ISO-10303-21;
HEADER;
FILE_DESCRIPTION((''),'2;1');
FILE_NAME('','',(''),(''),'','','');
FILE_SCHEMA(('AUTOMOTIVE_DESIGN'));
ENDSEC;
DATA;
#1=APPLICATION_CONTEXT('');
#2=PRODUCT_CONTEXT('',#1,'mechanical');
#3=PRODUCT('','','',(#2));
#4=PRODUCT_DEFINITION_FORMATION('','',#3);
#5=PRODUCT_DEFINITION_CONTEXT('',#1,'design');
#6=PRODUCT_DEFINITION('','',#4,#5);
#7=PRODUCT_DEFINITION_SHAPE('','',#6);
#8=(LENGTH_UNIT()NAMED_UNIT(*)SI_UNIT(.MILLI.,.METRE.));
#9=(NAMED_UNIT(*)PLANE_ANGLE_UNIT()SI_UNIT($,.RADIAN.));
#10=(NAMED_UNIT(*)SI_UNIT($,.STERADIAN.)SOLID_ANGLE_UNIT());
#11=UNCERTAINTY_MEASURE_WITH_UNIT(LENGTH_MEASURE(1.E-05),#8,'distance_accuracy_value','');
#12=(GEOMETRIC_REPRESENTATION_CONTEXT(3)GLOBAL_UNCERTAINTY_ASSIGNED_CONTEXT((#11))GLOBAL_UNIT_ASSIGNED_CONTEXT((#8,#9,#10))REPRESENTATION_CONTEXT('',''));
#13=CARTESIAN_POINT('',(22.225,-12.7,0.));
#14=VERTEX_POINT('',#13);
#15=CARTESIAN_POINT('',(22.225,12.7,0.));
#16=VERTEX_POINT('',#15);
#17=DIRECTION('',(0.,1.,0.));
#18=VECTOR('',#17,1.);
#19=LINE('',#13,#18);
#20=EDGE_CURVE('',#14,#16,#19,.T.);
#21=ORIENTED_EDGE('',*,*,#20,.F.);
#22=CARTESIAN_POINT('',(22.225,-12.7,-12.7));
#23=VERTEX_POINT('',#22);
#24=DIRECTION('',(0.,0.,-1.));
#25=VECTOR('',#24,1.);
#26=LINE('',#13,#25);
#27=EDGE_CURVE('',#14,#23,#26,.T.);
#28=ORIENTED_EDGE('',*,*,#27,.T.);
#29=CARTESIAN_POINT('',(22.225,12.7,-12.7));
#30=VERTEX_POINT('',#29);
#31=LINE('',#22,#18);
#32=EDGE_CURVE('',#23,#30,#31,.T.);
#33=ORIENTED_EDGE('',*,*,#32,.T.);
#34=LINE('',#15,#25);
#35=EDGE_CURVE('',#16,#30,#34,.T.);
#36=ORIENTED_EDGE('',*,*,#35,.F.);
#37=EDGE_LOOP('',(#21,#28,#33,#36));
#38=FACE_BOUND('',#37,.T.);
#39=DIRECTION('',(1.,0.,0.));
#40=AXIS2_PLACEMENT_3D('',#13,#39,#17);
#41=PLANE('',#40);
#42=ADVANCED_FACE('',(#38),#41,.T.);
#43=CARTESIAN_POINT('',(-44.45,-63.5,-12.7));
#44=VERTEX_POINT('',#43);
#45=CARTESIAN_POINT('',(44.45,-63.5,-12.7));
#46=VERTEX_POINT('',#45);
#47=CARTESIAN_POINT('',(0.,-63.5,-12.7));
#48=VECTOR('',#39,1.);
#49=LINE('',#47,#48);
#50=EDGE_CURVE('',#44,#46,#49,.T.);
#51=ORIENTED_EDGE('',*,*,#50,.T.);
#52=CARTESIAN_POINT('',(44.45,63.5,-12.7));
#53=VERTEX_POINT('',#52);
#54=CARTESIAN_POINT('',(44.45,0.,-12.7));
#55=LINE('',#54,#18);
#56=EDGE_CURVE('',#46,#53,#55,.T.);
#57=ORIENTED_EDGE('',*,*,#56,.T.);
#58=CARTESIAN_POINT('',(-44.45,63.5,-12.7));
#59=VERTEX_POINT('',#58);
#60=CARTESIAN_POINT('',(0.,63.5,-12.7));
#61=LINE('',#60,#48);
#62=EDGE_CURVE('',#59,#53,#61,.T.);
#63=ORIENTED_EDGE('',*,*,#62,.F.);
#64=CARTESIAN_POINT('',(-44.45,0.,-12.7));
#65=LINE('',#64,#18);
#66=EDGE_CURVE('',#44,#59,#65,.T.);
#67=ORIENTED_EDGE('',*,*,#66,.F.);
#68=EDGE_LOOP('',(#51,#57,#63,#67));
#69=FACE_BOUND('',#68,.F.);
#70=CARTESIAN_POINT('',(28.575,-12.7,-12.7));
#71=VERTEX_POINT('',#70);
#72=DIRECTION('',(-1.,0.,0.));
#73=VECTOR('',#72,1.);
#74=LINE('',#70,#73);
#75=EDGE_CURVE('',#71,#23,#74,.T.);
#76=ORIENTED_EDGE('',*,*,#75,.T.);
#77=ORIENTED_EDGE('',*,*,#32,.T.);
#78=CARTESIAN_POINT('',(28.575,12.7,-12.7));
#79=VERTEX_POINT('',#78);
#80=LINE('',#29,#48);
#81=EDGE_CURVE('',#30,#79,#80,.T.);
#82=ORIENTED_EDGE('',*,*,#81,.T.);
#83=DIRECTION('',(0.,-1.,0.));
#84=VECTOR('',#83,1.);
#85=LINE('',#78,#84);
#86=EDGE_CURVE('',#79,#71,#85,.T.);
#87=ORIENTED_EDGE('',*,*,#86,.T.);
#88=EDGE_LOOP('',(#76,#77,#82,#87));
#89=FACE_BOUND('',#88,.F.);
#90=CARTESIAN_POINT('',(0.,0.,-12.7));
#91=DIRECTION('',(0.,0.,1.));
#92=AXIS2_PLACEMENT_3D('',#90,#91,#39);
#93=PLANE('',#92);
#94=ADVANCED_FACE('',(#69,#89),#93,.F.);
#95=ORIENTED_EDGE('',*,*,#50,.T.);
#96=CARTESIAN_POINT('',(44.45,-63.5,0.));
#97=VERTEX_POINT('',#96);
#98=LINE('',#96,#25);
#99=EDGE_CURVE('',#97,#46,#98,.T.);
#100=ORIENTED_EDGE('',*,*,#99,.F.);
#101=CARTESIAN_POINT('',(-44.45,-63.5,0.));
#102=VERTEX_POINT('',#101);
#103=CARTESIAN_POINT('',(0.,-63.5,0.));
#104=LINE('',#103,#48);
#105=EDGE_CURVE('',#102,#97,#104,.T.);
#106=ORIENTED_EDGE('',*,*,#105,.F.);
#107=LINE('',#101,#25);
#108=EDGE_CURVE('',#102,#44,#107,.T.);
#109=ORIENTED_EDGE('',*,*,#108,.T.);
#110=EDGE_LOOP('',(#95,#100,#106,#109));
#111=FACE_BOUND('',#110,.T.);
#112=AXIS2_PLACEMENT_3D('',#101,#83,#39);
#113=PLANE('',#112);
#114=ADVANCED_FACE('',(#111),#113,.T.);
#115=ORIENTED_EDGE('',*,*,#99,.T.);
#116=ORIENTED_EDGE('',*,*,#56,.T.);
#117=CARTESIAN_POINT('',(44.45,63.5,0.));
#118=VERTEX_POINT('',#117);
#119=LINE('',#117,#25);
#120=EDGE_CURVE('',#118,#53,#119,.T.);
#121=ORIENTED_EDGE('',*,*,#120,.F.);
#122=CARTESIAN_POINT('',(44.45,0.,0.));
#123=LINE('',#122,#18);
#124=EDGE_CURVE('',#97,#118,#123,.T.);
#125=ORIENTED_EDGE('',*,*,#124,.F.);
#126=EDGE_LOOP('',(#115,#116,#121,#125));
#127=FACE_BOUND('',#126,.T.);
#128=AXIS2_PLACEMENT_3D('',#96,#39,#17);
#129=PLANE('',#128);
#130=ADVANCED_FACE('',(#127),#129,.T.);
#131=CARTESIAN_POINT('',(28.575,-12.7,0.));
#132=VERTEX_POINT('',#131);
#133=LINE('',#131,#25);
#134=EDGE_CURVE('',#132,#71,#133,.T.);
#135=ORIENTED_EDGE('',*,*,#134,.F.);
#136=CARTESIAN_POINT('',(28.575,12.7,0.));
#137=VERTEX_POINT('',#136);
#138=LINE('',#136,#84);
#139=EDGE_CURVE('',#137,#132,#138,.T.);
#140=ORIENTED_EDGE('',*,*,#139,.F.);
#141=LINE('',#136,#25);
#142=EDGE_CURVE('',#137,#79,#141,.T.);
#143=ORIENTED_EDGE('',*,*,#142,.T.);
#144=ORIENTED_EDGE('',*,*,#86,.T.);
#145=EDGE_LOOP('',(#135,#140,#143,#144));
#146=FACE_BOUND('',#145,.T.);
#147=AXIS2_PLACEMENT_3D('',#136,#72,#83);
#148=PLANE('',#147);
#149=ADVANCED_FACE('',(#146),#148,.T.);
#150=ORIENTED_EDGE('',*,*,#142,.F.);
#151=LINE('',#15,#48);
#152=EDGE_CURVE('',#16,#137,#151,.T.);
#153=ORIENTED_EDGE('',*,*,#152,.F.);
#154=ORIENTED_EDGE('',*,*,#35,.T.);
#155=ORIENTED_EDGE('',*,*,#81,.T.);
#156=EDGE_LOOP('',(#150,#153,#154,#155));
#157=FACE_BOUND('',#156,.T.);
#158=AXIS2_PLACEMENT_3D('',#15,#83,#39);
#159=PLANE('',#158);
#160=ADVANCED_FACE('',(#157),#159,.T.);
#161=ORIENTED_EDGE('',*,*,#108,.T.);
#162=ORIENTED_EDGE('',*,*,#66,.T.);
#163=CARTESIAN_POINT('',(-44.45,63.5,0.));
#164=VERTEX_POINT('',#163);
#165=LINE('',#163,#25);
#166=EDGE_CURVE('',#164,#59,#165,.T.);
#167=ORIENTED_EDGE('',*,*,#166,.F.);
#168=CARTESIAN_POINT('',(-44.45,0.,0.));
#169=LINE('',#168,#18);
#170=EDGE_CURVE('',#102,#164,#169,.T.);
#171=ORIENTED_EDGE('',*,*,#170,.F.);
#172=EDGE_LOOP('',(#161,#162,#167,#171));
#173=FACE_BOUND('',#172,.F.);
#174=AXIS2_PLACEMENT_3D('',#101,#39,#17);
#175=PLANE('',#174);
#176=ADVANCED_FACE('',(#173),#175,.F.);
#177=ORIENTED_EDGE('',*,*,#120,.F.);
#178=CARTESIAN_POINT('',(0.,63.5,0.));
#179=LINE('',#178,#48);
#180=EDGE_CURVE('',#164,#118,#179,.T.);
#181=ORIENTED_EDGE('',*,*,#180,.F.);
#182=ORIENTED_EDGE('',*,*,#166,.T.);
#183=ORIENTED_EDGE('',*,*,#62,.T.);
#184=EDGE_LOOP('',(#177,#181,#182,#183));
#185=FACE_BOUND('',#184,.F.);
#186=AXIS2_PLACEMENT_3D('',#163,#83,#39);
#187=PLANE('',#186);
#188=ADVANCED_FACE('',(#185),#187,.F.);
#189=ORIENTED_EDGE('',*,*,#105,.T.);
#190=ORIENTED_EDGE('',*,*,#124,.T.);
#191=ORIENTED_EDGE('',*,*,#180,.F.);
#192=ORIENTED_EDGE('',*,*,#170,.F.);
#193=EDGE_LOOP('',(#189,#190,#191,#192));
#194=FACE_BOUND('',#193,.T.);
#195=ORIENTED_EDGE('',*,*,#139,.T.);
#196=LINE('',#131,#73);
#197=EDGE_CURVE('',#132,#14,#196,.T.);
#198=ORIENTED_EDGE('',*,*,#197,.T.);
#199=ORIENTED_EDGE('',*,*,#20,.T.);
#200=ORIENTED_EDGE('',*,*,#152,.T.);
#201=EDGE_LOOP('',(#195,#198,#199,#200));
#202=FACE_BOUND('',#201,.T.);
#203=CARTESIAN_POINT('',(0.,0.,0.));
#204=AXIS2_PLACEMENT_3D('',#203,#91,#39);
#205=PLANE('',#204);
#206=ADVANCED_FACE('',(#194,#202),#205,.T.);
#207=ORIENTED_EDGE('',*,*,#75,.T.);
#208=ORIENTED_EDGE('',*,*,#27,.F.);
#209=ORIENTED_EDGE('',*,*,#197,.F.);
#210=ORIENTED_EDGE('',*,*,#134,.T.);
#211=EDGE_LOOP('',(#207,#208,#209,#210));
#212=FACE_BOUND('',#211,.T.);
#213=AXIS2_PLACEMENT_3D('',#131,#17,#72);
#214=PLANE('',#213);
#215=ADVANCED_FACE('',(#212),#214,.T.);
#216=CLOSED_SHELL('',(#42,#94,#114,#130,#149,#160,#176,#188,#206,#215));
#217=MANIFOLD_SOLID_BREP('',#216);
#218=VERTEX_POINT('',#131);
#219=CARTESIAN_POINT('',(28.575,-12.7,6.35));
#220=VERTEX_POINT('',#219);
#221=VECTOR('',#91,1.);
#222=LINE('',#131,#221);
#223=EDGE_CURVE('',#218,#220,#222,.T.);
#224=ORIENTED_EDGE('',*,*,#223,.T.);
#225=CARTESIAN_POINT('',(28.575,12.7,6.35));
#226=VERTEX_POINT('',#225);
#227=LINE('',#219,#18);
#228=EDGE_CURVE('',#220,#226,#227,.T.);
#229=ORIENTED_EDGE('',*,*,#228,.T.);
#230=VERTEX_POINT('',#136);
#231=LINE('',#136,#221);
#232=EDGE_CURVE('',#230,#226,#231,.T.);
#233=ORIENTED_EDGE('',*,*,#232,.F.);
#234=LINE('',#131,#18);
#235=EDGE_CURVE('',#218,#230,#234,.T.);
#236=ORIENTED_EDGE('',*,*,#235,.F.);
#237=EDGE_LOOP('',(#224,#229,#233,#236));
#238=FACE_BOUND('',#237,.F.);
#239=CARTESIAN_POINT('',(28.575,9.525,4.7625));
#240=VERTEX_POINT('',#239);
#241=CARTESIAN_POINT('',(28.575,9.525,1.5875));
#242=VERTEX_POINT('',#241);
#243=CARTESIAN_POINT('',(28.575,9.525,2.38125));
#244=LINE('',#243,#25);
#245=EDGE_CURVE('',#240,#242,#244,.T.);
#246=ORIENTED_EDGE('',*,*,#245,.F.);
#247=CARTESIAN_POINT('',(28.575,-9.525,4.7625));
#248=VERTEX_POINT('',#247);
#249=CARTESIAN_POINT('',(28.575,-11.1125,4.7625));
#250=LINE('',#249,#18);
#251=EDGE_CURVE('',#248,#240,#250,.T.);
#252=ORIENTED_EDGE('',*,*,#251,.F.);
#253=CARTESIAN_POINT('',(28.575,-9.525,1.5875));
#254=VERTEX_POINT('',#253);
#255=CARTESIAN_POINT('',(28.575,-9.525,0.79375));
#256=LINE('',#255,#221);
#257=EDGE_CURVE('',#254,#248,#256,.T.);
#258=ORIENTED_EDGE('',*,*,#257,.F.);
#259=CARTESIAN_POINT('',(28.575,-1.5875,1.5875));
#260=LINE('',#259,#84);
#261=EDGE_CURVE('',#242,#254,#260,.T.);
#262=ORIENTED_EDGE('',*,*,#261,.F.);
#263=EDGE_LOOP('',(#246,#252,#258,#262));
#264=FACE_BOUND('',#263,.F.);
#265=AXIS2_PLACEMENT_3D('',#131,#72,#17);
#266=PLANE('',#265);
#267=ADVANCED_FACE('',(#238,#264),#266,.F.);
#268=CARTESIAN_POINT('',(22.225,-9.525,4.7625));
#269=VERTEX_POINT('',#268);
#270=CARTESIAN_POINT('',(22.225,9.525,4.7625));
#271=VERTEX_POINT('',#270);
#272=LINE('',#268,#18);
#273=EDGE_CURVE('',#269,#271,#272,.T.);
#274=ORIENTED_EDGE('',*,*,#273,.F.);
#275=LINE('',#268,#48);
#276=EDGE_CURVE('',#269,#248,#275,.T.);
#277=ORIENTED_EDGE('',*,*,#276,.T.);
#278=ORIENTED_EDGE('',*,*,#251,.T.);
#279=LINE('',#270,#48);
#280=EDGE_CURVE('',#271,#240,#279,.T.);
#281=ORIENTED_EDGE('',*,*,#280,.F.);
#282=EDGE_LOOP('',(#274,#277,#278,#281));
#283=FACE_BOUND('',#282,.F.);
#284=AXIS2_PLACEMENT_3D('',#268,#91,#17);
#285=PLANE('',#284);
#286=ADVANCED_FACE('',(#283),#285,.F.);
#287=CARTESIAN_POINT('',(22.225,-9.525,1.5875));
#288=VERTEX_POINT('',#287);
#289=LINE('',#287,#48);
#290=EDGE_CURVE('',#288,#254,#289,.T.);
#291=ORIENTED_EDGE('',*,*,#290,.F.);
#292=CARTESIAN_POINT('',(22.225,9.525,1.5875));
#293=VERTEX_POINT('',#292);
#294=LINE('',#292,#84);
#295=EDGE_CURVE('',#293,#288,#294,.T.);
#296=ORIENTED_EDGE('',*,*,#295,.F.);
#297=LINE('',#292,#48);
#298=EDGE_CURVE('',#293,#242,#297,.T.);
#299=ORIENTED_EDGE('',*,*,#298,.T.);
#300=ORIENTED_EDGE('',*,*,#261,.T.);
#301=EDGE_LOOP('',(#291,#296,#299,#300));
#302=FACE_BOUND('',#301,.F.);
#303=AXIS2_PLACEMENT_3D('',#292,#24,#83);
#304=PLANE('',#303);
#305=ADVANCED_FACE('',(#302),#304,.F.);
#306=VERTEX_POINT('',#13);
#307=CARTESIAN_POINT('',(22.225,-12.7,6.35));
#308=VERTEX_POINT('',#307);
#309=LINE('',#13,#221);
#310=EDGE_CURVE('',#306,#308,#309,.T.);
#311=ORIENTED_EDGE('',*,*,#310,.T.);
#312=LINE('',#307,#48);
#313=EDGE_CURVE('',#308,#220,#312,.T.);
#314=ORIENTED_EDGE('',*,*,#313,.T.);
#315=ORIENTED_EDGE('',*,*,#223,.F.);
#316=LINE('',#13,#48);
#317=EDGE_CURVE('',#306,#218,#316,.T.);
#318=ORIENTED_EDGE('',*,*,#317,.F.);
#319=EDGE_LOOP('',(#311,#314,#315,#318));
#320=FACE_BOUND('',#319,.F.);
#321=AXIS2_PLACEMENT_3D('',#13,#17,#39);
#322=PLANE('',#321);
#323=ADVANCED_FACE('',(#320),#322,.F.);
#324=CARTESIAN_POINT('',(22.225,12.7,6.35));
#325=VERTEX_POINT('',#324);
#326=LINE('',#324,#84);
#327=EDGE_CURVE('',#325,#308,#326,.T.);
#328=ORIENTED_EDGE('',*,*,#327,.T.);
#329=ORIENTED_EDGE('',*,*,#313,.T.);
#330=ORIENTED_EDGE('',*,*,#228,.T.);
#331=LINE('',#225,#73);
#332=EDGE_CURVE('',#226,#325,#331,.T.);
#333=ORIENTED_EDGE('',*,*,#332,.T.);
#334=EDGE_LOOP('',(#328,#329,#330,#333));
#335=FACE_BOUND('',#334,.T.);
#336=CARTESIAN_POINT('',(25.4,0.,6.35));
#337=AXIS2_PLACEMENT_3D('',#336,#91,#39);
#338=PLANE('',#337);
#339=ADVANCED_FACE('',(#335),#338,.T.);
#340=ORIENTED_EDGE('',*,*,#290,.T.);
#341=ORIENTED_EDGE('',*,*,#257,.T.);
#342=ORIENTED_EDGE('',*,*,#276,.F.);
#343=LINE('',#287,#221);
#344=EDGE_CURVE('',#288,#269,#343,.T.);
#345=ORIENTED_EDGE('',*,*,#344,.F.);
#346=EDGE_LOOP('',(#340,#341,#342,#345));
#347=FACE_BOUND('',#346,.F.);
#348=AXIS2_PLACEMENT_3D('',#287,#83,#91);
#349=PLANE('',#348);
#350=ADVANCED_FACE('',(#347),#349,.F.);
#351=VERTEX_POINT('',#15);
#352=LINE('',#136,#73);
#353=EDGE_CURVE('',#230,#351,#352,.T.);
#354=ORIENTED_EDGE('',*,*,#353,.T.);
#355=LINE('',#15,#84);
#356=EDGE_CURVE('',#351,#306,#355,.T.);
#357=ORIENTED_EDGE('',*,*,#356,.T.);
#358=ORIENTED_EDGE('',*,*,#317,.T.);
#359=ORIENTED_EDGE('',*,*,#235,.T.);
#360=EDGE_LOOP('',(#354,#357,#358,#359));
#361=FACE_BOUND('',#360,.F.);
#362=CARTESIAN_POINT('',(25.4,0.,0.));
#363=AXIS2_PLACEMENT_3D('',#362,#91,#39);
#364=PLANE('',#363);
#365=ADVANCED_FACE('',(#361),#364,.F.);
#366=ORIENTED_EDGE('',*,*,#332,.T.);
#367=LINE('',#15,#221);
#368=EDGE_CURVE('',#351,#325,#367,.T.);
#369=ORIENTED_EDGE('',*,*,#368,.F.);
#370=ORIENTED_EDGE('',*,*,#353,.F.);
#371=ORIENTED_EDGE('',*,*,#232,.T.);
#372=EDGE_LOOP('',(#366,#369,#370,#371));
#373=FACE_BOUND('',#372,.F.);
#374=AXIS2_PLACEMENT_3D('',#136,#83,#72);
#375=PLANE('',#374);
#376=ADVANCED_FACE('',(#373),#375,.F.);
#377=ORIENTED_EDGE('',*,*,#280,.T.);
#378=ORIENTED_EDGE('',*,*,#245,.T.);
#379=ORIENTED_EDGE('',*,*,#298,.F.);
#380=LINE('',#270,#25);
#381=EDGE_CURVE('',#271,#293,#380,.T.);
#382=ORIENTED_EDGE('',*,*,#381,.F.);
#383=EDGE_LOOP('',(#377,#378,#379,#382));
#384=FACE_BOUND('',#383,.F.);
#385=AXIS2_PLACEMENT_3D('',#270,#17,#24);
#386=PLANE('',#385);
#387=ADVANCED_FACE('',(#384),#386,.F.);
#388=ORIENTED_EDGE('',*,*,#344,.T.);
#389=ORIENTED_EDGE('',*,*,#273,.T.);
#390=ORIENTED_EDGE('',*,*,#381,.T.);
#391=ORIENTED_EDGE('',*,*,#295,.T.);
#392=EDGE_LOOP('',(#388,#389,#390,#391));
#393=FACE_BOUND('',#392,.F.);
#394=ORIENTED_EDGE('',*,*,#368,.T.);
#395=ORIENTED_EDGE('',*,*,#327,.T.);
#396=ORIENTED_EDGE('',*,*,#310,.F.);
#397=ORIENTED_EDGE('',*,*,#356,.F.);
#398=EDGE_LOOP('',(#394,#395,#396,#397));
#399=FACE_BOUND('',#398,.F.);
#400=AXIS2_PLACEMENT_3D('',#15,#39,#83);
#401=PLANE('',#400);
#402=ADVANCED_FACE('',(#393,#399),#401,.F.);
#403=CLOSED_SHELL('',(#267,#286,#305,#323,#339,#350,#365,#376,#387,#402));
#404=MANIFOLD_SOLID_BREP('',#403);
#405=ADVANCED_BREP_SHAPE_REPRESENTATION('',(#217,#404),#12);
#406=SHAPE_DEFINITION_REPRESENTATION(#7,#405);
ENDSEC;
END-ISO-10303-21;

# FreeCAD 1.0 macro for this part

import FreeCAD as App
import Part
import Sketcher
Q = App.Units.Quantity


def add_polygon(sketch, points):
    """Adds a closed chain of lines whose ends are joined by coincident constraints."""
    first, n = sketch.GeometryCount, len(points)
    for a, b in zip(points, points[1:] + points[:1]):
        sketch.addGeometry(Part.LineSegment(App.Vector(*a, 0), App.Vector(*b, 0)), False)
    for i in range(n):
        sketch.addConstraint(Sketcher.Constraint("Coincident", first + i, 2, first + (i + 1) % n, 1))

doc = App.newDocument("Part")
body = doc.addObject("PartDesign::Body", "Body")

sketch1 = doc.addObject("Sketcher::SketchObject", "Sketch")
body.addObject(sketch1)
sketch1.AttachmentSupport = (doc.XY_Plane, [""])
sketch1.MapMode = "FlatFace"
add_polygon(sketch1, [(-44.45, 63.5), (-44.45, -63.5), (44.45, -63.5), (44.45, 63.5)])
add_polygon(sketch1, [(22.225, 12.7), (28.575, 12.7), (28.575, -12.7), (22.225, -12.7)])
sketch1.addConstraint(Sketcher.Constraint("Vertical", 0))
sketch1.addConstraint(Sketcher.Constraint("Horizontal", 1))
sketch1.addConstraint(Sketcher.Constraint("Vertical", 2))
sketch1.addConstraint(Sketcher.Constraint("Horizontal", 3))
sketch1.addConstraint(Sketcher.Constraint("Horizontal", 4))
sketch1.addConstraint(Sketcher.Constraint("Vertical", 5))
sketch1.addConstraint(Sketcher.Constraint("Horizontal", 6))
sketch1.addConstraint(Sketcher.Constraint("Vertical", 7))
sketch1.addConstraint(Sketcher.Constraint("Symmetric", 0, 2, 2, 2, -1, 1))
sketch1.addConstraint(Sketcher.Constraint("DistanceY", 0, 2, 0, 1, Q("5 in")))
sketch1.addConstraint(Sketcher.Constraint("DistanceY", 5, 2, 5, 1, Q("1 in")))
sketch1.addConstraint(Sketcher.Constraint("DistanceX", 1, 1, 1, 2, Q("3.5 in")))
sketch1.addConstraint(Sketcher.Constraint("DistanceY", 4, 2, 2, 2, Q("2 in")))
sketch1.addConstraint(Sketcher.Constraint("DistanceX", 4, 1, 4, 2, Q("0.25 in")))
sketch1.addConstraint(Sketcher.Constraint("DistanceX", -1, 1, 4, 2, Q("1.125 in")))
pad1 = doc.addObject("PartDesign::Pad", "Pad")
body.addObject(pad1)
pad1.Profile = sketch1
pad1.Length = Q("0.5 in")
pad1.Reversed = True
body2 = doc.addObject("PartDesign::Body", "Body001")

sketch2 = doc.addObject("Sketcher::SketchObject", "Sketch001")
body2.addObject(sketch2)
sketch2.AttachmentSupport = (doc.getObject("XY_Plane001"), [""])
sketch2.MapMode = "FlatFace"
add_polygon(sketch2, [(22.225, -12.7), (28.575, -12.7), (28.575, 12.7), (22.225, 12.7)])
sketch2.addConstraint(Sketcher.Constraint("Horizontal", 0))
sketch2.addConstraint(Sketcher.Constraint("Vertical", 1))
sketch2.addConstraint(Sketcher.Constraint("Horizontal", 2))
sketch2.addConstraint(Sketcher.Constraint("Vertical", 3))
sketch2.addConstraint(Sketcher.Constraint("DistanceY", 1, 1, 1, 2, Q("1 in")))
sketch2.addConstraint(Sketcher.Constraint("DistanceX", 0, 1, 0, 2, Q("0.25 in")))
sketch2.addConstraint(Sketcher.Constraint("DistanceY", 0, 2, -1, 1, Q("0.5 in")))
sketch2.addConstraint(Sketcher.Constraint("DistanceX", -1, 1, 0, 2, Q("1.125 in")))
pad2 = doc.addObject("PartDesign::Pad", "Pad001")
body2.addObject(pad2)
pad2.Profile = sketch2
pad2.Length = Q("0.25 in")

sketch3 = doc.addObject("Sketcher::SketchObject", "Sketch002")
body2.addObject(sketch3)
sketch3.AttachmentSupport = (doc.getObject("YZ_Plane001"), [""])
sketch3.MapMode = "FlatFace"
sketch3.AttachmentOffset = App.Placement(App.Vector(0, 0, 0.875 * 25.4), App.Rotation())
add_polygon(sketch3, [(-9.525, 1.5875), (-9.525, 4.7625), (9.525, 4.7625), (9.525, 1.5875)])
sketch3.addConstraint(Sketcher.Constraint("Vertical", 0))
sketch3.addConstraint(Sketcher.Constraint("Horizontal", 1))
sketch3.addConstraint(Sketcher.Constraint("Vertical", 2))
sketch3.addConstraint(Sketcher.Constraint("Horizontal", 3))
sketch3.addConstraint(Sketcher.Constraint("DistanceX", 1, 1, 1, 2, Q("0.75 in")))
sketch3.addConstraint(Sketcher.Constraint("DistanceY", 0, 1, 0, 2, Q("0.125 in")))
sketch3.addConstraint(Sketcher.Constraint("DistanceX", 0, 2, -1, 1, Q("0.375 in")))
sketch3.addConstraint(Sketcher.Constraint("DistanceY", -1, 1, 0, 2, Q("0.1875 in")))
pocket1 = doc.addObject("PartDesign::Pocket", "Pocket")
body2.addObject(pocket1)
pocket1.Profile = sketch3
pocket1.Length = Q("1 in")
pocket1.Reversed = True

doc.recompute()
